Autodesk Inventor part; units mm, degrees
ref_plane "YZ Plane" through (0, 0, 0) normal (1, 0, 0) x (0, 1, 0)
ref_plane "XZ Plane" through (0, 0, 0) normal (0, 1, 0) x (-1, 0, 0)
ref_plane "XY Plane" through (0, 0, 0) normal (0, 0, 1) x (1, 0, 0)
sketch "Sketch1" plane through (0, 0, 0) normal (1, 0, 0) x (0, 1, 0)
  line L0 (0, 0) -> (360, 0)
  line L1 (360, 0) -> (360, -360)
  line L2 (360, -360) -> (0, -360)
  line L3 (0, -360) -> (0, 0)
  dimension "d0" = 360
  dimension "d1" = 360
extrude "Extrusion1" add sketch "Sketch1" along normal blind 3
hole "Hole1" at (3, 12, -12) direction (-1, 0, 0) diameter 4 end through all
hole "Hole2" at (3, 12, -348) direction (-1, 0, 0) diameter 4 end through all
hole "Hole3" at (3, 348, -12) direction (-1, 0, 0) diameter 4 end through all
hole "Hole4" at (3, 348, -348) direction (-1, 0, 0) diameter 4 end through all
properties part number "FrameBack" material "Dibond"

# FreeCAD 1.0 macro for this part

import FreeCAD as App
import Part
import Sketcher

V = App.Vector
Q = App.Units.Quantity

doc = App.newDocument("Part")
params = doc.addObject("Spreadsheet::Sheet", "Params")
for row, (alias, value) in enumerate([
    ("sketch1_width", "360 mm"),
    ("pad1_length", "3 mm"),
    ("sketch2_diameter", "4 mm"),
    ("hole_diameter", "4 mm"),
    ("sketch3_diameter", "4 mm"),
    ("hole2_diameter", "4 mm"),
    ("sketch4_diameter", "4 mm"),
    ("hole3_diameter", "4 mm"),
    ("sketch5_diameter", "4 mm"),
    ("hole4_diameter", "4 mm"),
], start=1):
    params.set(f"A{row}", alias)
    params.set(f"B{row}", "=" + value)
    params.setAlias(f"B{row}", alias)

body = doc.addObject("PartDesign::Body", "Body")

sketch1 = body.newObject("Sketcher::SketchObject", "Sketch")
sketch1.AttachmentSupport = (doc.getObject("YZ_Plane"), [""])
sketch1.MapMode = "FlatFace"
sketch1.addGeometry(Part.LineSegment(V(360, 0, 0), V(0, 0, 0)), False)
sketch1.addGeometry(Part.LineSegment(V(0, 0, 0), V(0, -360, 0)), False)
sketch1.addGeometry(Part.LineSegment(V(0, -360, 0), V(360, -360, 0)), False)
sketch1.addGeometry(Part.LineSegment(V(360, -360, 0), V(360, 0, 0)), False)
sketch1.addConstraint(Sketcher.Constraint("Coincident", 0, 2, 1, 1))
sketch1.addConstraint(Sketcher.Constraint("Coincident", 1, 2, 2, 1))
sketch1.addConstraint(Sketcher.Constraint("Coincident", 2, 2, 3, 1))
sketch1.addConstraint(Sketcher.Constraint("Coincident", 3, 2, 0, 1))
sketch1.addConstraint(Sketcher.Constraint("Horizontal", 0))
sketch1.addConstraint(Sketcher.Constraint("Vertical", 1))
sketch1.addConstraint(Sketcher.Constraint("Horizontal", 2))
sketch1.addConstraint(Sketcher.Constraint("Vertical", 3))
sketch1.addConstraint(Sketcher.Constraint("Coincident", 0, 2, -1, 1))
sketch1.addConstraint(Sketcher.Constraint("Equal", 2, 1))
sketch1.addConstraint(Sketcher.Constraint("DistanceX", 0, 2, 0, 1, Q("360 mm")))
sketch1.setExpression("Constraints[10]", "Params.sketch1_width")
pad1 = body.newObject("PartDesign::Pad", "Pad")
pad1.Profile = sketch1
pad1.setExpression("Length", "Params.pad1_length")

sketch2 = body.newObject("Sketcher::SketchObject", "Sketch001")
sketch2.AttachmentSupport = (doc.getObject("YZ_Plane"), [""])
sketch2.MapMode = "FlatFace"
sketch2.AttachmentOffset = App.Placement(V(0, 0, 3), App.Rotation())
sketch2.addGeometry(Part.Circle(V(12, -12, 0), V(0, 0, 1), 2), False)
sketch2.addConstraint(Sketcher.Constraint("Diameter", 0, Q("4 mm")))
sketch2.addConstraint(Sketcher.Constraint("DistanceX", -1, 1, 0, 3, Q("12 mm")))
sketch2.addConstraint(Sketcher.Constraint("DistanceY", 0, 3, -1, 1, Q("12 mm")))
sketch2.setExpression("Constraints[0]", "Params.sketch2_diameter")
doc.recompute()
hole = body.newObject("PartDesign::Hole", "Hole")
hole.Profile = sketch2
hole.ThreadType = "None"
hole.setExpression("Diameter", "Params.hole_diameter")
hole.DepthType = "ThroughAll"

sketch3 = body.newObject("Sketcher::SketchObject", "Sketch002")
sketch3.AttachmentSupport = (doc.getObject("YZ_Plane"), [""])
sketch3.MapMode = "FlatFace"
sketch3.AttachmentOffset = App.Placement(V(0, 0, 3), App.Rotation())
sketch3.addGeometry(Part.Circle(V(12, -348, 0), V(0, 0, 1), 2), False)
sketch3.addConstraint(Sketcher.Constraint("Diameter", 0, Q("4 mm")))
sketch3.addConstraint(Sketcher.Constraint("DistanceX", -1, 1, 0, 3, Q("12 mm")))
sketch3.addConstraint(Sketcher.Constraint("DistanceY", 0, 3, -1, 1, Q("348 mm")))
sketch3.setExpression("Constraints[0]", "Params.sketch3_diameter")
doc.recompute()
hole2 = body.newObject("PartDesign::Hole", "Hole001")
hole2.Profile = sketch3
hole2.ThreadType = "None"
hole2.setExpression("Diameter", "Params.hole2_diameter")
hole2.DepthType = "ThroughAll"

sketch4 = body.newObject("Sketcher::SketchObject", "Sketch003")
sketch4.AttachmentSupport = (doc.getObject("YZ_Plane"), [""])
sketch4.MapMode = "FlatFace"
sketch4.AttachmentOffset = App.Placement(V(0, 0, 3), App.Rotation())
sketch4.addGeometry(Part.Circle(V(348, -12, 0), V(0, 0, 1), 2), False)
sketch4.addConstraint(Sketcher.Constraint("Diameter", 0, Q("4 mm")))
sketch4.addConstraint(Sketcher.Constraint("DistanceX", -1, 1, 0, 3, Q("348 mm")))
sketch4.addConstraint(Sketcher.Constraint("DistanceY", 0, 3, -1, 1, Q("12 mm")))
sketch4.setExpression("Constraints[0]", "Params.sketch4_diameter")
doc.recompute()
hole3 = body.newObject("PartDesign::Hole", "Hole002")
hole3.Profile = sketch4
hole3.ThreadType = "None"
hole3.setExpression("Diameter", "Params.hole3_diameter")
hole3.DepthType = "ThroughAll"

sketch5 = body.newObject("Sketcher::SketchObject", "Sketch004")
sketch5.AttachmentSupport = (doc.getObject("YZ_Plane"), [""])
sketch5.MapMode = "FlatFace"
sketch5.AttachmentOffset = App.Placement(V(0, 0, 3), App.Rotation())
sketch5.addGeometry(Part.Circle(V(348, -348, 0), V(0, 0, 1), 2), False)
sketch5.addConstraint(Sketcher.Constraint("Diameter", 0, Q("4 mm")))
sketch5.addConstraint(Sketcher.Constraint("DistanceX", -1, 1, 0, 3, Q("348 mm")))
sketch5.addConstraint(Sketcher.Constraint("DistanceY", 0, 3, -1, 1, Q("348 mm")))
sketch5.setExpression("Constraints[0]", "Params.sketch5_diameter")
doc.recompute()
hole4 = body.newObject("PartDesign::Hole", "Hole003")
hole4.Profile = sketch5
hole4.ThreadType = "None"
hole4.setExpression("Diameter", "Params.hole4_diameter")
hole4.DepthType = "ThroughAll"

doc.recompute()
